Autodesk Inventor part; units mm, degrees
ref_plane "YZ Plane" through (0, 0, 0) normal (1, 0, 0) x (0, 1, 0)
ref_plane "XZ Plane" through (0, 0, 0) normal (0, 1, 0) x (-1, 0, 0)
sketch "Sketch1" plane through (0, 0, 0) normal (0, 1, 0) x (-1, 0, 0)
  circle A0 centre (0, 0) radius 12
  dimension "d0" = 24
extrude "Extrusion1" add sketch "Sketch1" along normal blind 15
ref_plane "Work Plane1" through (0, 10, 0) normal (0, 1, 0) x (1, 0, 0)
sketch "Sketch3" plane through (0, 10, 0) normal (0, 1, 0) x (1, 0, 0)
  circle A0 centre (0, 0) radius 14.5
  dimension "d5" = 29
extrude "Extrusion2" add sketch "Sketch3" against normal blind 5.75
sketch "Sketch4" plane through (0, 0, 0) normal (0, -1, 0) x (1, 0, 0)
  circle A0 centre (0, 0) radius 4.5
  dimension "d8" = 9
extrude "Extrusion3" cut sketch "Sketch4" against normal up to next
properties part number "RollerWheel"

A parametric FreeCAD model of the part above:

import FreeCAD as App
import Part
import Sketcher
Q = App.Units.Quantity

doc = App.newDocument("Part")
body = doc.addObject("PartDesign::Body", "Body")

# Sketch on XZ plane
sketch1 = body.newObject("Sketcher::SketchObject", "Sketch")
sketch1.AttachmentSupport = (doc.getObject("XZ_Plane"), [""])
sketch1.MapMode = "FlatFace"
sketch1.addGeometry(Part.Circle(App.Vector(0, 0, 0), App.Vector(0, 0, 1), 12), False)
sketch1.addConstraint([
    Sketcher.Constraint("Coincident", 0, 3, -1, 1),
    Sketcher.Constraint("Diameter", 0, Q("24 mm")),
])
pad1 = body.newObject("PartDesign::Pad", "Pad")
pad1.Profile = sketch1
pad1.Length = 15
pad1.Reversed = True

# Sketch on XZ plane
sketch2 = body.newObject("Sketcher::SketchObject", "Sketch001")
sketch2.AttachmentSupport = (doc.getObject("XZ_Plane"), [""])
sketch2.MapMode = "FlatFace"
sketch2.AttachmentOffset = App.Placement(App.Vector(0, 0, -10), App.Rotation())
sketch2.addGeometry(Part.Circle(App.Vector(0, 0, 0), App.Vector(0, 0, 1), 14), False)
sketch2.addConstraint([
    Sketcher.Constraint("Coincident", 0, 3, -1, 1),
    Sketcher.Constraint("Diameter", 0, Q("29 mm")),
])
pad2 = body.newObject("PartDesign::Pad", "Pad001")
pad2.Profile = sketch2
pad2.Length = 5.75

# Sketch on XZ plane
sketch3 = body.newObject("Sketcher::SketchObject", "Sketch002")
sketch3.AttachmentSupport = (doc.getObject("XZ_Plane"), [""])
sketch3.MapMode = "FlatFace"
sketch3.addGeometry(Part.Circle(App.Vector(0, 0, 0), App.Vector(0, 0, 1), 4.5), False)
sketch3.addConstraint([
    Sketcher.Constraint("Coincident", 0, 3, -1, 1),
    Sketcher.Constraint("Diameter", 0, Q("9 mm")),
])
pocket1 = body.newObject("PartDesign::Pocket", "Pocket")
pocket1.Profile = sketch3
pocket1.Type = "UpToFirst"

doc.recompute()
